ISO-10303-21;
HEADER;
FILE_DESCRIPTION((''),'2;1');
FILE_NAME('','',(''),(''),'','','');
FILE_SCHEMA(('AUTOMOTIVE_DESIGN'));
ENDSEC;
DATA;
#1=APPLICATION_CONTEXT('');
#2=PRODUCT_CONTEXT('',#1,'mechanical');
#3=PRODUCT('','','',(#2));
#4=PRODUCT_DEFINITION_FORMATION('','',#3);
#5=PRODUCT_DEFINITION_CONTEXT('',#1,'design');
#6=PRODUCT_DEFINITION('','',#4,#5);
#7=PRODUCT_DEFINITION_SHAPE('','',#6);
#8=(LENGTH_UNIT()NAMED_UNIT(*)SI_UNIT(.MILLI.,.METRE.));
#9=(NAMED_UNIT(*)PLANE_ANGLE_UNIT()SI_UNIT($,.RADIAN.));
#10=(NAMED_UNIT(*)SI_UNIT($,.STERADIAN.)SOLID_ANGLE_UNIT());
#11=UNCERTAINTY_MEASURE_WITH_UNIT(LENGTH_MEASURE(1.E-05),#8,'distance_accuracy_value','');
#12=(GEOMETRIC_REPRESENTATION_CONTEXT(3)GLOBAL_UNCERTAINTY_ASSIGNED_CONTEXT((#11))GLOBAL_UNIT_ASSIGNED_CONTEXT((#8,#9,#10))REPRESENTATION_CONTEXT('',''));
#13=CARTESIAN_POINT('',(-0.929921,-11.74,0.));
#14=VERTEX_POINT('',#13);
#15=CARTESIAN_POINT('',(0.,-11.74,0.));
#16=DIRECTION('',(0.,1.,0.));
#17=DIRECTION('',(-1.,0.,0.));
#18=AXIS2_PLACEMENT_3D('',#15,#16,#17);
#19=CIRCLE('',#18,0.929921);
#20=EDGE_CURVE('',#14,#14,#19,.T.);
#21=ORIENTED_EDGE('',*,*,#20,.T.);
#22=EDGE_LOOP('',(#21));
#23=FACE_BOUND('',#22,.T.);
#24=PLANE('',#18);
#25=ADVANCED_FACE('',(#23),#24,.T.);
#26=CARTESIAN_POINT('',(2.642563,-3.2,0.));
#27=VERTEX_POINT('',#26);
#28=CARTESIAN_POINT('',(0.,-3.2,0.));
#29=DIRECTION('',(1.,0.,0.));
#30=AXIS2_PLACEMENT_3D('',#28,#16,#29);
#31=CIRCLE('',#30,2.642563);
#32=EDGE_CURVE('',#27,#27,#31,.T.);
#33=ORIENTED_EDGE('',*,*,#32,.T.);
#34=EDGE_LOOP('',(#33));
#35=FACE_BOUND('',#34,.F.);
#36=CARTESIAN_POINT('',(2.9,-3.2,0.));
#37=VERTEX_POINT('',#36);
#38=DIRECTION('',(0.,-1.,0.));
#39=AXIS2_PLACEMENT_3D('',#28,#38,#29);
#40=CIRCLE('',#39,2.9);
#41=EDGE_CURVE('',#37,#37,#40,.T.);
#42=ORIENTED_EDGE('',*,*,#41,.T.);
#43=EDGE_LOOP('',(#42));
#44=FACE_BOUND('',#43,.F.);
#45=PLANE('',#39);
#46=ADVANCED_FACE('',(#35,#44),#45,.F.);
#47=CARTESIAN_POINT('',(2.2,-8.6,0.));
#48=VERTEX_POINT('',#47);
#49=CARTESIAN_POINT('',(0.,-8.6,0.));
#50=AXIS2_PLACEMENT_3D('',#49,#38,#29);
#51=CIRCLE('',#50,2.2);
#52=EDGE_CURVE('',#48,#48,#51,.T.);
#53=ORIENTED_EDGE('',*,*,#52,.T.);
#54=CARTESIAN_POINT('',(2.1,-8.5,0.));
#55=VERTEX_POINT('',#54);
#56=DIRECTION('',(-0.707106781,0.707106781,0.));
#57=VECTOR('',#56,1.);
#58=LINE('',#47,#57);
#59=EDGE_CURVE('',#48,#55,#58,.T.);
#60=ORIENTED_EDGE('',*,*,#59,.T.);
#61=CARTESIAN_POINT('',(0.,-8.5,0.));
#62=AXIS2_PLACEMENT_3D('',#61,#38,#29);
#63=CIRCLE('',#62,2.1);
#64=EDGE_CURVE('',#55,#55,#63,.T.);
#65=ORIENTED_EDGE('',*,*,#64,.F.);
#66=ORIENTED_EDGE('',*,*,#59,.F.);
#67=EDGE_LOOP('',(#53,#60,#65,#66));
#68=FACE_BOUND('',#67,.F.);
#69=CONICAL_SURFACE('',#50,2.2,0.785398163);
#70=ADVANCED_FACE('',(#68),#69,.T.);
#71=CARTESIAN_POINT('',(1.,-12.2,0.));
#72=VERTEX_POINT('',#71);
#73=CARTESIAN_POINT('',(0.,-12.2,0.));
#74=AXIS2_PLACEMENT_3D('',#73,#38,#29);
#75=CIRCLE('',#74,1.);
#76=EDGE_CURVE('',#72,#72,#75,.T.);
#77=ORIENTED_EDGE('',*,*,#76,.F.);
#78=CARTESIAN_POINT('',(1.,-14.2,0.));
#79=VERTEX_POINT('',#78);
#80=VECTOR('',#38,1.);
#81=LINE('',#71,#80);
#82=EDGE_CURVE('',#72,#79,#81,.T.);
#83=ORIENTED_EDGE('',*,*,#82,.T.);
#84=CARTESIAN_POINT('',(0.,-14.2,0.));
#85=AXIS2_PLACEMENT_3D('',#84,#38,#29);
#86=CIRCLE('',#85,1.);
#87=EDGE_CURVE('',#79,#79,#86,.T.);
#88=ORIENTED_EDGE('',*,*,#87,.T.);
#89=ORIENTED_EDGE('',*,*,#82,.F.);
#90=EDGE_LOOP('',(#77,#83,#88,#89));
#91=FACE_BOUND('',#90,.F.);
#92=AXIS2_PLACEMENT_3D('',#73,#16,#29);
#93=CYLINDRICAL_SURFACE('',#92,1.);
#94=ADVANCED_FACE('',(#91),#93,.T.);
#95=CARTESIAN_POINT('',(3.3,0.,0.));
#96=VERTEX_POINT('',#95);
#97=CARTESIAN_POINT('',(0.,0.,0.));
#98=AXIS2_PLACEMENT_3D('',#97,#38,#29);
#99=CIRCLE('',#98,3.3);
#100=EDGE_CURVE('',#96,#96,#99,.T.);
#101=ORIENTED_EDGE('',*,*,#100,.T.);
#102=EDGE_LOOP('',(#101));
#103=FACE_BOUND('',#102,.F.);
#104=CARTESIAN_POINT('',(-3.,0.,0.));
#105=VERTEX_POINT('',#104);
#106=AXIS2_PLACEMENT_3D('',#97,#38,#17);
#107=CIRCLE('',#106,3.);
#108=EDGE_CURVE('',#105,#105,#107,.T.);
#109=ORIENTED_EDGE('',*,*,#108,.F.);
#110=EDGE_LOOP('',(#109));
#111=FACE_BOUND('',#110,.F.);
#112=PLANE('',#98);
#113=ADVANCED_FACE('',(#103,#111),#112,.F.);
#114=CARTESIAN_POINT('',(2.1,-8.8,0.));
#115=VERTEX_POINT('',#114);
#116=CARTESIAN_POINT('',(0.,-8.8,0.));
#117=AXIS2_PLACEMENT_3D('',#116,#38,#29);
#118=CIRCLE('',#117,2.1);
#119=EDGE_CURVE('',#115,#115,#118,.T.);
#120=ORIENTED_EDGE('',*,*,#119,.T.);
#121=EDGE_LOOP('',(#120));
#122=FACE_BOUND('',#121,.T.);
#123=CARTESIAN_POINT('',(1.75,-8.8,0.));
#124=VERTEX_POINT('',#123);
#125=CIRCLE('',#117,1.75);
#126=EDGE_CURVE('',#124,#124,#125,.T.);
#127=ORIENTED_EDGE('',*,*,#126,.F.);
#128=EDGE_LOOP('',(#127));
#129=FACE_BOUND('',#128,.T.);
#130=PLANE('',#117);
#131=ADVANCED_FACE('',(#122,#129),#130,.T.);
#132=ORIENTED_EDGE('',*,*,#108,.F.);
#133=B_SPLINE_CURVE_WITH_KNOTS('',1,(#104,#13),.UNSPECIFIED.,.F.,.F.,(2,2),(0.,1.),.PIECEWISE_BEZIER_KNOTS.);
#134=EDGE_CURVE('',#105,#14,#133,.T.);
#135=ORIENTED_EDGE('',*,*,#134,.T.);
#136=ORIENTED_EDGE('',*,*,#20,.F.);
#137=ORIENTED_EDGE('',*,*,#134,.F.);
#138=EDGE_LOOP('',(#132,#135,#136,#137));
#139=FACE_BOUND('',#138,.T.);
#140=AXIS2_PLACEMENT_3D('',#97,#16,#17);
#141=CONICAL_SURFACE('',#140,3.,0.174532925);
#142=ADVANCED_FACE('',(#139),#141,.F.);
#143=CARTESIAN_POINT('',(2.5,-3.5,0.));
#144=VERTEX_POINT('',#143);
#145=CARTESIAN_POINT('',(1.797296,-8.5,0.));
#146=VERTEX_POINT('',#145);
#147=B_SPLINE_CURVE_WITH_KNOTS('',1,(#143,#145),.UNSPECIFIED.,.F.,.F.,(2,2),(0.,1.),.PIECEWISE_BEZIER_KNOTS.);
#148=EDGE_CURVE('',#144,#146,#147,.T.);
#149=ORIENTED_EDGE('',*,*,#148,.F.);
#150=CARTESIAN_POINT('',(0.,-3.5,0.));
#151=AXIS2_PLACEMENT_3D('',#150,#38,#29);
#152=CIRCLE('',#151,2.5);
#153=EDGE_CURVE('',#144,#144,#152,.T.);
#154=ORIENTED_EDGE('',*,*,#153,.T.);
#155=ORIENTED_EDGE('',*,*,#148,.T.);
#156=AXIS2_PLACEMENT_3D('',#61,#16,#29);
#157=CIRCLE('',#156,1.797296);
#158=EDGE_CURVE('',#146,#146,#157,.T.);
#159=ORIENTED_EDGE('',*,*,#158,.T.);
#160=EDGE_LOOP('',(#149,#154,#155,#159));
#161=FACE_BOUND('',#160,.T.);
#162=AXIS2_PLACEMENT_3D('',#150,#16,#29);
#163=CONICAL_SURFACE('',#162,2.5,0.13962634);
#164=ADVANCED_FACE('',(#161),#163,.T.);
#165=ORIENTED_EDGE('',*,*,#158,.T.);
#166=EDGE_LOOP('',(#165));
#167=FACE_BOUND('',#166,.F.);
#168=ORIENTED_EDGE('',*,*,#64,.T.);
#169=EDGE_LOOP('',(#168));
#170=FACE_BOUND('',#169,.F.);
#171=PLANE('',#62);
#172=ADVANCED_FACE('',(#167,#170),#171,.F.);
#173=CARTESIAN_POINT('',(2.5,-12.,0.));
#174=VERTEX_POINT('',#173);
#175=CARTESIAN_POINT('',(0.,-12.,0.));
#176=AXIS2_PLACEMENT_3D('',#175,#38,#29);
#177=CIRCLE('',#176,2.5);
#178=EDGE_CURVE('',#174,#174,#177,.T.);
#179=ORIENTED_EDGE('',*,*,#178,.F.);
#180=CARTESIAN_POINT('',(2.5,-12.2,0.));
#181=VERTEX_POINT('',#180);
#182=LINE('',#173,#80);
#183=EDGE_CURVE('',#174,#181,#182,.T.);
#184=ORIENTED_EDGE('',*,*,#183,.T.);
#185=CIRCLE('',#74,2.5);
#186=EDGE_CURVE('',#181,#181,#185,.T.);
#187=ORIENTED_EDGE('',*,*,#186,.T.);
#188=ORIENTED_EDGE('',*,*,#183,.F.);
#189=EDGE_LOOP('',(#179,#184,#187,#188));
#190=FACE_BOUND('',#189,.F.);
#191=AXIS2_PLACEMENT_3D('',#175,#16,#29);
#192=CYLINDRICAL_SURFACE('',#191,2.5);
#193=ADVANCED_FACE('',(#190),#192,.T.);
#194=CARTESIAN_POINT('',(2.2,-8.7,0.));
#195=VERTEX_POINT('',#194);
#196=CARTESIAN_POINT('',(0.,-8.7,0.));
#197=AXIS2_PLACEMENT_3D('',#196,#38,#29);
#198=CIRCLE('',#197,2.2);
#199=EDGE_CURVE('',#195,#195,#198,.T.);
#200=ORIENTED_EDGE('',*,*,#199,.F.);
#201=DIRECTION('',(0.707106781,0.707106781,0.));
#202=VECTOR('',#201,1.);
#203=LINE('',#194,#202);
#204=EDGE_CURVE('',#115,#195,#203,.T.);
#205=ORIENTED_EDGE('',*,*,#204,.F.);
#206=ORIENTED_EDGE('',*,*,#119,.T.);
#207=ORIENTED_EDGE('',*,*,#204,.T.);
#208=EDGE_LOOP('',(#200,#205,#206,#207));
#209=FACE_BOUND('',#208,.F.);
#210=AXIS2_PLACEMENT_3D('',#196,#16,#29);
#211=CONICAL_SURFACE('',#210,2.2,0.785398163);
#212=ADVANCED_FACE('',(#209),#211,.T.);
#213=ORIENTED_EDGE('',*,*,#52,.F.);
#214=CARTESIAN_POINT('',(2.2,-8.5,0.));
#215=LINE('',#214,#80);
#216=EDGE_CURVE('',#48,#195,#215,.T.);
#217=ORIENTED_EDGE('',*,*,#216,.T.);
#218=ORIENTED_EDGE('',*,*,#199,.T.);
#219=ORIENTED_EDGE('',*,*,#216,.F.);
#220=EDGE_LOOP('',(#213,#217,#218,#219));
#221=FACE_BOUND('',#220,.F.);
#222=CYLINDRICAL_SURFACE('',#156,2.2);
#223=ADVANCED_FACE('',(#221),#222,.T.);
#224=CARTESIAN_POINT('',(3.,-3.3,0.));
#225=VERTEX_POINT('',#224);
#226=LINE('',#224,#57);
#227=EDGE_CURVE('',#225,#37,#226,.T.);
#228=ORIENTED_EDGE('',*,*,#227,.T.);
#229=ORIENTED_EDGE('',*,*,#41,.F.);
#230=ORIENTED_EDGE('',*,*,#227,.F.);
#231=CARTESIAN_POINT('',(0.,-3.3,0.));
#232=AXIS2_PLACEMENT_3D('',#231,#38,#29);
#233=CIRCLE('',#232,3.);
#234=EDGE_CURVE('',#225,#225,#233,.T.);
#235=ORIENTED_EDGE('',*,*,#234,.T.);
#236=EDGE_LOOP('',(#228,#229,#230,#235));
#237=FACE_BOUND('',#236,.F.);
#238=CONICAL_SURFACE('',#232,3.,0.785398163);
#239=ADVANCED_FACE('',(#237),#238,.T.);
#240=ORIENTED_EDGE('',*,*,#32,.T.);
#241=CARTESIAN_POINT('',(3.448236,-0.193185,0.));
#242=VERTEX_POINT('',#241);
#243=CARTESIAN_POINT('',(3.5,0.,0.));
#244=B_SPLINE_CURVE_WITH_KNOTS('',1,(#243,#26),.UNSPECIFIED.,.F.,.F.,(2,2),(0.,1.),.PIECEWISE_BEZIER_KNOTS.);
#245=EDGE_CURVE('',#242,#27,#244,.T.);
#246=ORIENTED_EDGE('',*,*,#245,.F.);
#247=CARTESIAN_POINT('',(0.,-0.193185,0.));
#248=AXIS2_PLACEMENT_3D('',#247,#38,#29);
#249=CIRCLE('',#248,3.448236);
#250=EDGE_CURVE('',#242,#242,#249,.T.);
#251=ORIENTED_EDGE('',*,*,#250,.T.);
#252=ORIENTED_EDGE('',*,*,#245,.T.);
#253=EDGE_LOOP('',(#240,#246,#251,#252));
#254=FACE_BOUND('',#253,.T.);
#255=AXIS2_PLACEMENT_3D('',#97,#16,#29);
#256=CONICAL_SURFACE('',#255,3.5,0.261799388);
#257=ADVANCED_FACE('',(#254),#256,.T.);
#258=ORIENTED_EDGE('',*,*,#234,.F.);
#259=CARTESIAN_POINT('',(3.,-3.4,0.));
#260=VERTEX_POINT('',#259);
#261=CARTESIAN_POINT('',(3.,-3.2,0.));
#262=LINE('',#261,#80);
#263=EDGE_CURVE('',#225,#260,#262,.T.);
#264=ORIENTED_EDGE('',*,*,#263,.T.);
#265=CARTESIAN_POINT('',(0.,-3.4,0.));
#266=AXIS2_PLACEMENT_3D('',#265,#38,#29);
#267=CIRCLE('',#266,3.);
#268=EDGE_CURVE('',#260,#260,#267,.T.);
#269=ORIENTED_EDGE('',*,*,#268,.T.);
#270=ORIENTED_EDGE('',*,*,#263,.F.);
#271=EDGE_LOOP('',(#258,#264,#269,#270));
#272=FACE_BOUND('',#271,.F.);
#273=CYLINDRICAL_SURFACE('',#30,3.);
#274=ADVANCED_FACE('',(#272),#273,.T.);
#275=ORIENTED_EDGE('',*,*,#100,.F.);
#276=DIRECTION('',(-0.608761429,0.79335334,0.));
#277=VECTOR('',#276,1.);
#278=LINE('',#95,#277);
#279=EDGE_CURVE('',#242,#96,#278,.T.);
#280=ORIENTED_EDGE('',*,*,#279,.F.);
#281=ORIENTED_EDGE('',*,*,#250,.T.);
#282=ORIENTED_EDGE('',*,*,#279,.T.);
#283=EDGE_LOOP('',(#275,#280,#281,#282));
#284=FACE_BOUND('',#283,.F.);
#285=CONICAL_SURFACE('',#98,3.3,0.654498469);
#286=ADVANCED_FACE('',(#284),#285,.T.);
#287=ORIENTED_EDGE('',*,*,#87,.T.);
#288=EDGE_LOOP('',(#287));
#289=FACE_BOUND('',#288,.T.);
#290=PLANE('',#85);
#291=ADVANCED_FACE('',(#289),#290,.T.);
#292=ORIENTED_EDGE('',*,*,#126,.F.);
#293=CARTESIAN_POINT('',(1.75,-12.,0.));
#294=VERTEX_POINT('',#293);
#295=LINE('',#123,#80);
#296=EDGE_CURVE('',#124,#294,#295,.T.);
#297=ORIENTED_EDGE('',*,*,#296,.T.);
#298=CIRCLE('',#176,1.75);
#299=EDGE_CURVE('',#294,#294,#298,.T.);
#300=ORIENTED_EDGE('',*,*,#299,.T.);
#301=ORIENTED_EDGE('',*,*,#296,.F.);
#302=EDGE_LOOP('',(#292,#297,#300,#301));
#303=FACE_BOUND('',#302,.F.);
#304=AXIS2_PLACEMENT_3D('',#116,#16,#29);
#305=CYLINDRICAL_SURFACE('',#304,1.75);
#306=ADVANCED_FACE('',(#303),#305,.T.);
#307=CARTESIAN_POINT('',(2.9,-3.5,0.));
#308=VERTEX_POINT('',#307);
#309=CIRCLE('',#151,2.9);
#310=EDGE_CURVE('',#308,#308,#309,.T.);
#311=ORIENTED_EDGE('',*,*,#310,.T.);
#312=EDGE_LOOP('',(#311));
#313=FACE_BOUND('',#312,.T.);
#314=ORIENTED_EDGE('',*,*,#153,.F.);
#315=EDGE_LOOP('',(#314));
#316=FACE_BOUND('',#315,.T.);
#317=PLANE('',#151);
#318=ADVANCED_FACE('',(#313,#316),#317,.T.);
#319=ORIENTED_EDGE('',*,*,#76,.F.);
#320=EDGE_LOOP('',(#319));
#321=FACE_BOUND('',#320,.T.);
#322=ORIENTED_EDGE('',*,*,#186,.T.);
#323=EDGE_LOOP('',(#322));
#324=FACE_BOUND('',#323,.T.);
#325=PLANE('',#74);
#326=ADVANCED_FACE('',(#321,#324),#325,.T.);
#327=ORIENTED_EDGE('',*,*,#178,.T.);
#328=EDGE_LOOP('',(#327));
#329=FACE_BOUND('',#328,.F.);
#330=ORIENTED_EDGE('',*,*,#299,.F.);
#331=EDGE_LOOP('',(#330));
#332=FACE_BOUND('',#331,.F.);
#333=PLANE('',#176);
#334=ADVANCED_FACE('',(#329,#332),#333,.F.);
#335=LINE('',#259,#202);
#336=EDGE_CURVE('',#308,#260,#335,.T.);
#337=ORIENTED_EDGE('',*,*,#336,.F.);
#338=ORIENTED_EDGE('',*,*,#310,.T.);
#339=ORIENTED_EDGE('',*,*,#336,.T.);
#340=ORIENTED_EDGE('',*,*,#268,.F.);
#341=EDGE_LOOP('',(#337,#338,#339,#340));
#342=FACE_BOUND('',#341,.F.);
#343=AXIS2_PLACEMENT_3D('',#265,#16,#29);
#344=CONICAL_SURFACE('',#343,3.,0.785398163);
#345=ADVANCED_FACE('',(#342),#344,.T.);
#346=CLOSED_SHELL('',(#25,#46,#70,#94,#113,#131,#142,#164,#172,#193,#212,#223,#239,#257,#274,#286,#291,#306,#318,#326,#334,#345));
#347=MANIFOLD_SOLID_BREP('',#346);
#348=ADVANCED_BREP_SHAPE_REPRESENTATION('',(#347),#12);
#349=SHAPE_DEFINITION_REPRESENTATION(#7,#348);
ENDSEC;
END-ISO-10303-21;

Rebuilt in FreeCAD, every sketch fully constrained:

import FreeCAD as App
import Part
import Sketcher

V = App.Vector
Q = App.Units.Quantity


def edges_at(feature, points):
    """Names of the edges that pass closest to the given points."""
    edges = feature.Shape.Edges
    near = lambda p: min(range(len(edges)), key=lambda i: edges[i].distToShape(Part.Vertex(*p))[0])
    return sorted({f"Edge{near(p) + 1}" for p in points})

doc = App.newDocument("Part")
body = doc.addObject("PartDesign::Body", "Body")

# Sketch on XZ plane
sketch1 = doc.addObject("Sketcher::SketchObject", "Sketch")
body.addObject(sketch1)
sketch1.AttachmentSupport = (doc.XZ_Plane, [""])
sketch1.MapMode = "FlatFace"
sketch1.addGeometry(Part.Circle(V(0, 0, 0), V(0, 0, 1), 3.5), False)
sketch1.addConstraint([
    Sketcher.Constraint("Coincident", 0, 3, -1, 1),
    Sketcher.Constraint("Diameter", 0, Q("7 mm")),
])
pad1 = doc.addObject("PartDesign::Pad", "Pad")
body.addObject(pad1)
pad1.Profile = sketch1
pad1.Length = 3.2
pad1.TaperAngle = -15

# Sketch on XZ plane
sketch2 = doc.addObject("Sketcher::SketchObject", "Sketch001")
body.addObject(sketch2)
sketch2.AttachmentSupport = (doc.XZ_Plane, [""])
sketch2.MapMode = "FlatFace"
sketch2.AttachmentOffset = App.Placement(V(0, 0, 3.2), App.Rotation())
sketch2.addGeometry(Part.Circle(V(0, 0, 0), V(0, 0, 1), 3), False)
sketch2.addConstraint([
    Sketcher.Constraint("Coincident", 0, 3, -1, 1),
    Sketcher.Constraint("Diameter", 0, Q("6 mm")),
])
pad2 = doc.addObject("PartDesign::Pad", "Pad001")
body.addObject(pad2)
pad2.Profile = sketch2
pad2.Length = 0.3
doc.recompute()

chamfer = doc.addObject("PartDesign::Chamfer", "Chamfer")
body.addObject(chamfer)
chamfer.Base = (pad2, edges_at(pad2, [(-3.5, 0, 0)]))
chamfer.Size = 0.2

# Sketch on XZ plane
sketch3 = doc.addObject("Sketcher::SketchObject", "Sketch002")
body.addObject(sketch3)
sketch3.AttachmentSupport = (doc.XZ_Plane, [""])
sketch3.MapMode = "FlatFace"
sketch3.AttachmentOffset = App.Placement(V(0, 0, 3.5), App.Rotation())
sketch3.addGeometry(Part.Circle(V(0, 0, 0), V(0, 0, 1), 2.5), False)
sketch3.addConstraint([
    Sketcher.Constraint("Coincident", 0, 3, -1, 1),
    Sketcher.Constraint("Diameter", 0, Q("5 mm")),
])
pad3 = doc.addObject("PartDesign::Pad", "Pad002")
body.addObject(pad3)
pad3.Profile = sketch3
pad3.Length = 5
pad3.TaperAngle = -8

# Sketch on XZ plane
sketch4 = doc.addObject("Sketcher::SketchObject", "Sketch003")
body.addObject(sketch4)
sketch4.AttachmentSupport = (doc.XZ_Plane, [""])
sketch4.MapMode = "FlatFace"
sketch4.AttachmentOffset = App.Placement(V(0, 0, 8.5), App.Rotation())
sketch4.addGeometry(Part.Circle(V(0, 0, 0), V(0, 0, 1), 2.2), False)
sketch4.addConstraint([
    Sketcher.Constraint("Coincident", 0, 3, -1, 1),
    Sketcher.Constraint("Diameter", 0, Q("4.4 mm")),
])
pad4 = doc.addObject("PartDesign::Pad", "Pad003")
body.addObject(pad4)
pad4.Profile = sketch4
pad4.Length = 0.3

# Sketch on XZ plane
sketch5 = doc.addObject("Sketcher::SketchObject", "Sketch004")
body.addObject(sketch5)
sketch5.AttachmentSupport = (doc.XZ_Plane, [""])
sketch5.MapMode = "FlatFace"
sketch5.AttachmentOffset = App.Placement(V(0, 0, 8.8), App.Rotation())
sketch5.addGeometry(Part.Circle(V(0, 0, 0), V(0, 0, 1), 1.8), False)
sketch5.addConstraint([
    Sketcher.Constraint("Coincident", 0, 3, -1, 1),
    Sketcher.Constraint("Diameter", 0, Q("3.5 mm")),
])
pad5 = doc.addObject("PartDesign::Pad", "Pad004")
body.addObject(pad5)
pad5.Profile = sketch5
pad5.Length = 3.2

# Sketch on XZ plane
sketch6 = doc.addObject("Sketcher::SketchObject", "Sketch005")
body.addObject(sketch6)
sketch6.AttachmentSupport = (doc.XZ_Plane, [""])
sketch6.MapMode = "FlatFace"
sketch6.AttachmentOffset = App.Placement(V(0, 0, 12), App.Rotation())
sketch6.addGeometry(Part.Circle(V(0, 0, 0), V(0, 0, 1), 2.5), False)
sketch6.addConstraint([
    Sketcher.Constraint("Coincident", 0, 3, -1, 1),
    Sketcher.Constraint("Diameter", 0, Q("5 mm")),
])
pad6 = doc.addObject("PartDesign::Pad", "Pad005")
body.addObject(pad6)
pad6.Profile = sketch6
pad6.Length = 0.2

# Sketch on XZ plane
sketch7 = doc.addObject("Sketcher::SketchObject", "Sketch006")
body.addObject(sketch7)
sketch7.AttachmentSupport = (doc.XZ_Plane, [""])
sketch7.MapMode = "FlatFace"
sketch7.AttachmentOffset = App.Placement(V(0, 0, 12.2), App.Rotation())
sketch7.addGeometry(Part.Circle(V(0, 0, 0), V(0, 0, 1), 1), False)
sketch7.addConstraint([
    Sketcher.Constraint("Coincident", 0, 3, -1, 1),
    Sketcher.Constraint("Diameter", 0, Q("2 mm")),
])
pad7 = doc.addObject("PartDesign::Pad", "Pad006")
body.addObject(pad7)
pad7.Profile = sketch7
pad7.Length = 2
doc.recompute()

chamfer2 = doc.addObject("PartDesign::Chamfer", "Chamfer001")
body.addObject(chamfer2)
chamfer2.Base = (pad7, edges_at(pad7, [
    (-3, -3.5, 0),
    (-2.2, -8.8, 0),
    (-2.2, -8.5, 0),
    (-3, -3.2, 0),
]))
chamfer2.Size = 0.1

# Sketch on XZ plane
sketch8 = doc.addObject("Sketcher::SketchObject", "Sketch007")
body.addObject(sketch8)
sketch8.AttachmentSupport = (doc.XZ_Plane, [""])
sketch8.MapMode = "FlatFace"
sketch8.addGeometry(Part.Circle(V(0, 0, 0), V(0, 0, 1), 3), False)
sketch8.addConstraint([
    Sketcher.Constraint("Coincident", 0, 3, -1, 1),
    Sketcher.Constraint("Diameter", 0, Q("6 mm")),
])
pocket1 = doc.addObject("PartDesign::Pocket", "Pocket")
body.addObject(pocket1)
pocket1.Profile = sketch8
pocket1.Length = 23.48
pocket1.Midplane = True
pocket1.TaperAngle = -10

doc.recompute()
